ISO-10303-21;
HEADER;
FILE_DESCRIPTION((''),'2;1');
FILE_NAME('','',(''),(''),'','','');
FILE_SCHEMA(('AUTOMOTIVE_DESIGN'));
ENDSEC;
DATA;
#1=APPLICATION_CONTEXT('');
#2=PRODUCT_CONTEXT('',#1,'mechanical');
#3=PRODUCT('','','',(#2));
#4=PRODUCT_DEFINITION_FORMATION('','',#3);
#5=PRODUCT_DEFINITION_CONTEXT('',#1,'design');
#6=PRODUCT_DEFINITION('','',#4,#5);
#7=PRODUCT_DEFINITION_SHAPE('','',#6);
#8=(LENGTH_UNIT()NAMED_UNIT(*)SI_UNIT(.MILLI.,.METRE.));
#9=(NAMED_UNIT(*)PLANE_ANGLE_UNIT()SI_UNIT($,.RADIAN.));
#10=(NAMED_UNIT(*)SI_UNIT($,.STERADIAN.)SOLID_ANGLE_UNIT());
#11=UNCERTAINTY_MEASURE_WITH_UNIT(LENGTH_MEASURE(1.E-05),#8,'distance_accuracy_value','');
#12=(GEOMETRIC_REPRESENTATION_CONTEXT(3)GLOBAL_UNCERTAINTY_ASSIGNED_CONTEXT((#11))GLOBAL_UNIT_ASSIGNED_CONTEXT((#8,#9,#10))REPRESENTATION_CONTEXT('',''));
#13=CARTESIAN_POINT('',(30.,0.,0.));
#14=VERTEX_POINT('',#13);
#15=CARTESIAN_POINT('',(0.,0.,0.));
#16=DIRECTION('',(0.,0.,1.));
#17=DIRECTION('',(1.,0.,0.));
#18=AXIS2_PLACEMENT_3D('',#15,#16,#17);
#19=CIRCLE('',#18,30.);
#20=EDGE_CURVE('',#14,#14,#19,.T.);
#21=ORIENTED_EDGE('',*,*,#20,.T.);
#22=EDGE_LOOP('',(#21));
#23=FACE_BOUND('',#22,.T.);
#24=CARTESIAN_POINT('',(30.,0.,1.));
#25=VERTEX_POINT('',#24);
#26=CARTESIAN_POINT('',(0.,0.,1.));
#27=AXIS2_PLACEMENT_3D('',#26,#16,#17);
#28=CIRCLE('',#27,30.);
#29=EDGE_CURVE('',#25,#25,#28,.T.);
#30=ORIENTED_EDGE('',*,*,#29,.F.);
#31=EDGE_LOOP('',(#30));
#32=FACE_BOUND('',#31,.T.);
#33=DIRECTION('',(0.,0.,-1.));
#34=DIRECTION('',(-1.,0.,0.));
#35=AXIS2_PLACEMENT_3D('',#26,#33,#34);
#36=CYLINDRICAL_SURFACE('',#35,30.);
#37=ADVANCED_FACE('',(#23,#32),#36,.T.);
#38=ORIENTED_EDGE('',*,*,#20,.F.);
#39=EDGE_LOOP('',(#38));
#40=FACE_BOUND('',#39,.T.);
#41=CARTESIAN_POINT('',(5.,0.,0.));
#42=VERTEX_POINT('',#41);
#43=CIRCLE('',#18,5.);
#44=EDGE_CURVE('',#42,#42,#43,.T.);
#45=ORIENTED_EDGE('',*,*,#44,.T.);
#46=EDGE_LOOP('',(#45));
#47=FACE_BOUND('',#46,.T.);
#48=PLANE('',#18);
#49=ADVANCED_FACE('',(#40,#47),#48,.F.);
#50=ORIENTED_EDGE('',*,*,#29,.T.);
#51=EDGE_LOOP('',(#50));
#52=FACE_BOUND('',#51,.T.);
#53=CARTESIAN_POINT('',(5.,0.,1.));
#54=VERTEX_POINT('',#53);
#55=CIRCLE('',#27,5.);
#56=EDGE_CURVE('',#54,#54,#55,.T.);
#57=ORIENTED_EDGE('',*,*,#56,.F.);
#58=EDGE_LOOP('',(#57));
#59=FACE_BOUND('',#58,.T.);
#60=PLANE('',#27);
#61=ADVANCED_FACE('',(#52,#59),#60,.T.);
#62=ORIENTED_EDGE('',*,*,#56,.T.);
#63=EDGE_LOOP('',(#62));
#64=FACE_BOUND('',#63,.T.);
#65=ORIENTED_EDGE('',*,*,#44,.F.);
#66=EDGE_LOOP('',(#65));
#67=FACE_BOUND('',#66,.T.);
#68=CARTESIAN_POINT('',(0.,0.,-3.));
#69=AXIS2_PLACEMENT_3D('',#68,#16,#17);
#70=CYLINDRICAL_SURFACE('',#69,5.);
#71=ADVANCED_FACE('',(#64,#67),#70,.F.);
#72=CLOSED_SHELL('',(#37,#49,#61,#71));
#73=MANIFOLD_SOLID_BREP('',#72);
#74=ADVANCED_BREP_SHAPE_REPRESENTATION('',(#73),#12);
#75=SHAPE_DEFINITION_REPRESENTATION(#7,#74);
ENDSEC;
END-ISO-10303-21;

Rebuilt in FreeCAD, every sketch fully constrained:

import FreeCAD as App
import Part
import Sketcher
Q = App.Units.Quantity

doc = App.newDocument("Part")
body = doc.addObject("PartDesign::Body", "Body")

sketch1 = body.newObject("Sketcher::SketchObject", "Sketch")
sketch1.AttachmentSupport = (doc.getObject("XY_Plane"), [""])
sketch1.MapMode = "FlatFace"
sketch1.addGeometry(Part.Circle(App.Vector(0, 0, 0), App.Vector(0, 0, 1), 30), False)
sketch1.addConstraint(Sketcher.Constraint("Coincident", 0, 3, -1, 1))
sketch1.addConstraint(Sketcher.Constraint("Diameter", 0, Q("60 mm")))
pad1 = body.newObject("PartDesign::Pad", "Pad")
pad1.Profile = sketch1
pad1.Length = 1

sketch2 = body.newObject("Sketcher::SketchObject", "Sketch001")
sketch2.AttachmentSupport = (doc.getObject("XY_Plane"), [""])
sketch2.MapMode = "FlatFace"
sketch2.AttachmentOffset = App.Placement(App.Vector(0, 0, 1), App.Rotation())
sketch2.addGeometry(Part.Circle(App.Vector(0, 0, 0), App.Vector(0, 0, 1), 5), False)
sketch2.addConstraint(Sketcher.Constraint("Coincident", 0, 3, -1, 1))
sketch2.addConstraint(Sketcher.Constraint("Diameter", 0, Q("10 mm")))
pocket1 = body.newObject("PartDesign::Pocket", "Pocket")
pocket1.Profile = sketch2
pocket1.Length = 4

doc.recompute()
